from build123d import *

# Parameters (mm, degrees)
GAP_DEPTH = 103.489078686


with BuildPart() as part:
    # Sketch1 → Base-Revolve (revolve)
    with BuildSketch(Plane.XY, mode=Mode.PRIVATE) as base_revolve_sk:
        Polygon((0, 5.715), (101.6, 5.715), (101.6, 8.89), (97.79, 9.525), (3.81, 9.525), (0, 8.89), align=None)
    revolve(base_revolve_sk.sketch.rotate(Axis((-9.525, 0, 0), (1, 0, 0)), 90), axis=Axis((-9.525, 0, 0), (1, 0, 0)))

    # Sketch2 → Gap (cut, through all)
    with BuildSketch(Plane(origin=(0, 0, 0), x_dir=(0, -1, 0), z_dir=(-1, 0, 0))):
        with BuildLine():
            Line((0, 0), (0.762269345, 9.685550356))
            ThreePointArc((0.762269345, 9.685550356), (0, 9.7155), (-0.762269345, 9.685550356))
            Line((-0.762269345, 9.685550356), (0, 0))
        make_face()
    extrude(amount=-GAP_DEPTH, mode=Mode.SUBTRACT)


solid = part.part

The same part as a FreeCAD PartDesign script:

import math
import FreeCAD as App
import Part
import Sketcher
from FreeCAD import Vector
Q = App.Units.Quantity


def add_polygon(sketch, points):
    """Adds a closed chain of lines whose ends are joined by coincident constraints."""
    first, n = sketch.GeometryCount, len(points)
    for a, b in zip(points, points[1:] + points[:1]):
        sketch.addGeometry(Part.LineSegment(App.Vector(*a, 0), App.Vector(*b, 0)), False)
    for i in range(n):
        sketch.addConstraint(Sketcher.Constraint("Coincident", first + i, 2, first + (i + 1) % n, 1))

doc = App.newDocument("Part")
body = doc.addObject("PartDesign::Body", "Body")

sketch1 = body.newObject("Sketcher::SketchObject", "Sketch")
sketch1.AttachmentSupport = (doc.getObject("XY_Plane"), [""])
sketch1.MapMode = "FlatFace"
add_polygon(sketch1, [(0, 5.715), (101.6, 5.715), (101.6, 8.89), (97.79, 9.525), (3.81, 9.525), (0, 8.89)])
sketch1.addConstraint([
    Sketcher.Constraint("Horizontal", 0),
    Sketcher.Constraint("Vertical", 1),
    Sketcher.Constraint("Horizontal", 3),
    Sketcher.Constraint("Vertical", 5),
    Sketcher.Constraint("PointOnObject", 4, 2, -2),
    Sketcher.Constraint("Horizontal", 1, 2, 4, 2),
    Sketcher.Constraint("Equal", 2, 4),
    Sketcher.Constraint("DistanceX", 0, 1, 0, 2, Q("4 in")),
    Sketcher.Constraint("DistanceX", 3, 2, 3, 1, Q("3.7 in")),
    Sketcher.Constraint("DistanceY", 1, 1, 1, 2, Q("0.125 in")),
    Sketcher.Constraint("DistanceY", -1, 1, 1, 2, Q("0.35 in")),
    Sketcher.Constraint("DistanceY", 0, 2, 2, 2, Q("0.15 in")),
])
revolution = body.newObject("PartDesign::Revolution", "Revolution")
revolution.Profile = sketch1
revolution.ReferenceAxis = (sketch1, ["H_Axis"])
revolution.Angle = 360

sketch2 = body.newObject("Sketcher::SketchObject", "Sketch001")
sketch2.AttachmentSupport = (doc.getObject("YZ_Plane"), [""])
sketch2.MapMode = "FlatFace"
sketch2.addGeometry([
    Part.LineSegment(Vector(0, 0, 0), Vector(-0.762269, 9.68555, 0)),
    Part.ArcOfCircle(Part.Circle(Vector(0, 0, 0), Vector(0, 0, 1), 9.7155), math.radians(85.5), math.radians(94.5)),
    Part.LineSegment(Vector(0.762269, 9.68555, 0), Vector(0, 0, 0)),
], False)
sketch2.addConstraint([
    Sketcher.Constraint("Coincident", 0, 2, 1, 2),
    Sketcher.Constraint("Coincident", 1, 1, 2, 1),
    Sketcher.Constraint("Coincident", 2, 2, 0, 1),
    Sketcher.Constraint("Coincident", 1, 3, -1, 1),
    Sketcher.Constraint("Coincident", 2, 2, -1, 1),
    Sketcher.Constraint("Horizontal", 0, 2, 1, 1),
    Sketcher.Constraint("Angle", 0, Q("94.5 deg")),
    Sketcher.Constraint("Radius", 1, Q("0.3825 in")),
])
pocket1 = body.newObject("PartDesign::Pocket", "Pocket")
pocket1.Profile = sketch2
pocket1.Type = "ThroughAll"
pocket1.Reversed = True

doc.recompute()
